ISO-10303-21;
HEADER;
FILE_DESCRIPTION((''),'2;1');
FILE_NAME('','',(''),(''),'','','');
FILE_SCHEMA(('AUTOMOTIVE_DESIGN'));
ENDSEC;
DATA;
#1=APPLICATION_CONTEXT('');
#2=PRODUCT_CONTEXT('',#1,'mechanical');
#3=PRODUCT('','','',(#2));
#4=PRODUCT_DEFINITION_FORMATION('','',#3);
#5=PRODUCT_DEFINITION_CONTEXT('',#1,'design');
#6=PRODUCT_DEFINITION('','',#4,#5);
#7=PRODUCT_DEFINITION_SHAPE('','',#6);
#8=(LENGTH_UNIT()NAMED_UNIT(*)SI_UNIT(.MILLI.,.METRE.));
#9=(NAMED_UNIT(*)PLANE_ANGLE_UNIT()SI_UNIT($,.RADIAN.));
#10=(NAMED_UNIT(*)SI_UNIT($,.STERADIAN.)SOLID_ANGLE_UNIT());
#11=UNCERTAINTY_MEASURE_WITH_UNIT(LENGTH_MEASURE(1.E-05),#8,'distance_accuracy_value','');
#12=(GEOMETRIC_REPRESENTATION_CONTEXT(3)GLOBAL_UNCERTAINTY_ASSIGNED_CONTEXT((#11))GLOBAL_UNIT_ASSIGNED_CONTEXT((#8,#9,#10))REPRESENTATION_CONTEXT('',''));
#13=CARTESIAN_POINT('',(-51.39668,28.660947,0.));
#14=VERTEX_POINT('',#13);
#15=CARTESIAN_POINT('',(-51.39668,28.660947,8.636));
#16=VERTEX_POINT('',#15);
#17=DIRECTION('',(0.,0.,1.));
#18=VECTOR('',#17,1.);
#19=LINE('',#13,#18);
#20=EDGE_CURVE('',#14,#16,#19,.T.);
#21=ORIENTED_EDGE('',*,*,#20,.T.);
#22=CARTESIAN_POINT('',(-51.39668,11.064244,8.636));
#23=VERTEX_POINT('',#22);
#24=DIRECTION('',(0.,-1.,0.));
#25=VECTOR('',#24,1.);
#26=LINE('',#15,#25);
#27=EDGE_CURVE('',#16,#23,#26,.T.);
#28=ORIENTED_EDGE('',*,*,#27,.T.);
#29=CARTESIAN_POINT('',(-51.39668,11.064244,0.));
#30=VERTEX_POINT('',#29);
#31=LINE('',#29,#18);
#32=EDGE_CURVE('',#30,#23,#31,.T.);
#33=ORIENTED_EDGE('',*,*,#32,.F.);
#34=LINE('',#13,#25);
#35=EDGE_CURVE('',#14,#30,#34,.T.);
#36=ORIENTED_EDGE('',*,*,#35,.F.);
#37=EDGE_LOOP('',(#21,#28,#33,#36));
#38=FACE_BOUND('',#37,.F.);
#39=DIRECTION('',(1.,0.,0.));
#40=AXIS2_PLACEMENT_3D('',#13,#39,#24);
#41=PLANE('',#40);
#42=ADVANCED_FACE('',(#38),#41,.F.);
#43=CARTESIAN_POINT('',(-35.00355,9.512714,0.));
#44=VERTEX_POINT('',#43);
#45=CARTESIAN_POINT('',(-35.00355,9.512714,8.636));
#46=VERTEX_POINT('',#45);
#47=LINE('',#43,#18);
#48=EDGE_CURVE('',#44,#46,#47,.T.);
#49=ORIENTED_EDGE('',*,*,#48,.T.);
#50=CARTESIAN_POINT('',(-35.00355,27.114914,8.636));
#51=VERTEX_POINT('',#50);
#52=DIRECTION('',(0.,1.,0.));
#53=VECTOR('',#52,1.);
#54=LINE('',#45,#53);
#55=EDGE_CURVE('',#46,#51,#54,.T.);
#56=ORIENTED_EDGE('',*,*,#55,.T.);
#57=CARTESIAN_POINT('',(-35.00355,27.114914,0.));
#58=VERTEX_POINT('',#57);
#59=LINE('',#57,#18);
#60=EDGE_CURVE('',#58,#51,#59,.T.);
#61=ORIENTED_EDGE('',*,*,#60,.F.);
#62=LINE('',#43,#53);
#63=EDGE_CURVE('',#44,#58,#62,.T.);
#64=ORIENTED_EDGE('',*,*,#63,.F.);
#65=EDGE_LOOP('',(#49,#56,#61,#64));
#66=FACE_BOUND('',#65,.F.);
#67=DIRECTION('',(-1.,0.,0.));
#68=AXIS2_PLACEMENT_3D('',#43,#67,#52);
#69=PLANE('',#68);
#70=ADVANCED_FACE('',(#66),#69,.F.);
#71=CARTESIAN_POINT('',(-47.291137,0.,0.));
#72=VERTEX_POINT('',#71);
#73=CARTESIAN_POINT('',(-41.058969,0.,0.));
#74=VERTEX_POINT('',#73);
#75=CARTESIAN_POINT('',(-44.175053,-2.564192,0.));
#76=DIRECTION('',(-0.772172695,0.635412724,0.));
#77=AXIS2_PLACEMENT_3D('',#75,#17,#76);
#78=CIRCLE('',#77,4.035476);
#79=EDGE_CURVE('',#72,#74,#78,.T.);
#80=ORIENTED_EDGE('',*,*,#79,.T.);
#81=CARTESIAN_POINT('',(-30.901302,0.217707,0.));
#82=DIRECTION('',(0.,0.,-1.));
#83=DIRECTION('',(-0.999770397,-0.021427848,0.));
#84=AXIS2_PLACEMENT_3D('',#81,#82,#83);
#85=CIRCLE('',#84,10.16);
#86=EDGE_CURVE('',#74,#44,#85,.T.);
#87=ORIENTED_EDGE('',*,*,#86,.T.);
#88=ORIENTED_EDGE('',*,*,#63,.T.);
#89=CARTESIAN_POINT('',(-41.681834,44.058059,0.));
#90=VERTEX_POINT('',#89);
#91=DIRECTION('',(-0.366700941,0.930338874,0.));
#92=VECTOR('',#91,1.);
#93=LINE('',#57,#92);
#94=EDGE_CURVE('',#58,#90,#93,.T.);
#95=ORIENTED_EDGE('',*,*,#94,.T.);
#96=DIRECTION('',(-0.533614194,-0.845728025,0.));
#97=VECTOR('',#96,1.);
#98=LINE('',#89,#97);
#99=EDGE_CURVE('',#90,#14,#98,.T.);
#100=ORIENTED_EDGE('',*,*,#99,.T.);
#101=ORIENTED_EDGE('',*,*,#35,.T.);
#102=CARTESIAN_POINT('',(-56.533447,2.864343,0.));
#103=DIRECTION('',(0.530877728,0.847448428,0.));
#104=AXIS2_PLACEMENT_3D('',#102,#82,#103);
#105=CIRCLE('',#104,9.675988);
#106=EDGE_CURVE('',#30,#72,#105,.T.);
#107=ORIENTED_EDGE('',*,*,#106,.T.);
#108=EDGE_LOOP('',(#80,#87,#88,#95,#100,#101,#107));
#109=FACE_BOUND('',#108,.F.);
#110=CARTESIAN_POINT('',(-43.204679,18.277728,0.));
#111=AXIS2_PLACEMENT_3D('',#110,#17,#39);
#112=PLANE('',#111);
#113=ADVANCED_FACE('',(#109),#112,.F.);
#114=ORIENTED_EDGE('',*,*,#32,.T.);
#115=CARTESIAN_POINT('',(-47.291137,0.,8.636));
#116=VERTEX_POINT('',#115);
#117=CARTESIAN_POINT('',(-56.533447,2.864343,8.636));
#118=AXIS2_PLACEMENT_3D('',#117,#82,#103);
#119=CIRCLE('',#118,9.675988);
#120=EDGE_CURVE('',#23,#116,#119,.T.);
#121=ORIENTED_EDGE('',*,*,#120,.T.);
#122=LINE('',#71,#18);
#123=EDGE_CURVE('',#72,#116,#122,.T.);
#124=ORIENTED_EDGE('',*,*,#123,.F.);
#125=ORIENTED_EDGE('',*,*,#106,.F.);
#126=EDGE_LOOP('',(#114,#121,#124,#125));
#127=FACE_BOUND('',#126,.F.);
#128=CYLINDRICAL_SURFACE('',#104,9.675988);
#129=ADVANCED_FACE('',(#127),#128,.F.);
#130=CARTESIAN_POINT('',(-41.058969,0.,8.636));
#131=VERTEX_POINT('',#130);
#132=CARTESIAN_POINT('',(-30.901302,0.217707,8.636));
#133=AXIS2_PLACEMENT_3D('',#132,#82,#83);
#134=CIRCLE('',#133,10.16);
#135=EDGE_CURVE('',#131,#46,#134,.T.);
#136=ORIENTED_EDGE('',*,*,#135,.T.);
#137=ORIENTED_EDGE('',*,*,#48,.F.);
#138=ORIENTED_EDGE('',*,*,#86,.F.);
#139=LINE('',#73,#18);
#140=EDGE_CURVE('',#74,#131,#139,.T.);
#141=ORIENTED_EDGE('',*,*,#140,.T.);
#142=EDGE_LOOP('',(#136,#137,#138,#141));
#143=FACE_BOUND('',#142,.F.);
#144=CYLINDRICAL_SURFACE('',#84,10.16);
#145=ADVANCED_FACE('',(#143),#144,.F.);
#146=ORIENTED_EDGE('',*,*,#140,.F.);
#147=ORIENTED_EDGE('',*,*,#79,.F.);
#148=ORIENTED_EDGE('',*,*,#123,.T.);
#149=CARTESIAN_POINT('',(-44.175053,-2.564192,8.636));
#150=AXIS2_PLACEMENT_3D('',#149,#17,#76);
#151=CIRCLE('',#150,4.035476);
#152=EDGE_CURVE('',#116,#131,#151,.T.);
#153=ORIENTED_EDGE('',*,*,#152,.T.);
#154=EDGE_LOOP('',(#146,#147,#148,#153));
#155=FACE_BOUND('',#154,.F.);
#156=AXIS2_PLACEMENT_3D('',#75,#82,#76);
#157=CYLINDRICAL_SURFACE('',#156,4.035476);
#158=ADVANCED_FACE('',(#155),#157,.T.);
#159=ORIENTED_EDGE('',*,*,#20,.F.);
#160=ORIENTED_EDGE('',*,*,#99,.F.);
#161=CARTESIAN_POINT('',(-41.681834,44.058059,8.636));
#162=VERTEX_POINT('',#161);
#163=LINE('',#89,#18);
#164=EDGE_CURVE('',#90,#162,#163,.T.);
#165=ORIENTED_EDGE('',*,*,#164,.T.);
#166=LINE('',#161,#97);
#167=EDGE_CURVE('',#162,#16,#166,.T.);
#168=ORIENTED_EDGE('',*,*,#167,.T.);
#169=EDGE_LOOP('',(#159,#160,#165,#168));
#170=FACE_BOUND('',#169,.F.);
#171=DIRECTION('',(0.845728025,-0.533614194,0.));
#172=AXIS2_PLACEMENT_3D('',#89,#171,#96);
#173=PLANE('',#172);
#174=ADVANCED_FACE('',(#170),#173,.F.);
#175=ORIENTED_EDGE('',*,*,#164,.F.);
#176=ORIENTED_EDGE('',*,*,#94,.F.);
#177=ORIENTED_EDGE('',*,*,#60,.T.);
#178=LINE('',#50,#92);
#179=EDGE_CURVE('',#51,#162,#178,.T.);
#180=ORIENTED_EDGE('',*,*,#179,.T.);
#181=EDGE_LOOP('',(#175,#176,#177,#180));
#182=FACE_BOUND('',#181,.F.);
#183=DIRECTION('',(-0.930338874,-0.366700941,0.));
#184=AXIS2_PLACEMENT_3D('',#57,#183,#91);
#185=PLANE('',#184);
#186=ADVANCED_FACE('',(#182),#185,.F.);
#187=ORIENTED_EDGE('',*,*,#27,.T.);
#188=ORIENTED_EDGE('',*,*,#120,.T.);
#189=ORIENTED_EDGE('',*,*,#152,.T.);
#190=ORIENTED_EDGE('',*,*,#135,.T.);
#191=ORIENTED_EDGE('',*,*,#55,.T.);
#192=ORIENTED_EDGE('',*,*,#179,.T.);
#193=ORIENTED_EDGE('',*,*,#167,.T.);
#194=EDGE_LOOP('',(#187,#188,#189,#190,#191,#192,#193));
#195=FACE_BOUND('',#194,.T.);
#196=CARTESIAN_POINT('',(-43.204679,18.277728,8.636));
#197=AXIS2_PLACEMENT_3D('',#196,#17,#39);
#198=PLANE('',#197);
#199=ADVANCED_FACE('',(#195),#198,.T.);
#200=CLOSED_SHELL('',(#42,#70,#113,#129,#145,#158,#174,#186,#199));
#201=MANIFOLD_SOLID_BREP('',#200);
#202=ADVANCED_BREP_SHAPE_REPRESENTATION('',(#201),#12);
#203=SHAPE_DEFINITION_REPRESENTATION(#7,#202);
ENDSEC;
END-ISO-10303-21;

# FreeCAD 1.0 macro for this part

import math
import FreeCAD as App
import Part
import Sketcher
Q = App.Units.Quantity

doc = App.newDocument("Part")
params = doc.addObject("Spreadsheet::Sheet", "Params")
for row, (alias, value) in enumerate([
    ("sketch1_radius", "0.4 in"),
    ("sketch1_height", "0.693 in"),
    ("sketch1_length", "0.717 in"),
    ("pad1_length", "0.34 in"),
], start=1):
    params.set(f"A{row}", alias)
    params.set(f"B{row}", "=" + value)
    params.setAlias(f"B{row}", alias)

body = doc.addObject("PartDesign::Body", "Body")

sketch1 = body.newObject("Sketcher::SketchObject", "Sketch")
sketch1.AttachmentSupport = (doc.getObject("XY_Plane"), [""])
sketch1.MapMode = "FlatFace"
sketch1.addGeometry([
    Part.LineSegment(App.Vector(-41.7, 44.1, 0), App.Vector(-51.4, 28.7, 0)),
    Part.LineSegment(App.Vector(-51.4, 28.7, 0), App.Vector(-51.4, 11.1, 0)),
    Part.ArcOfCircle(Part.Circle(App.Vector(-56.5, 2.9, 0), App.Vector(0, 0, 1), 9.7), math.radians(-17), math.radians(58)),
    Part.ArcOfCircle(Part.Circle(App.Vector(-44.2, -2.6, 0), App.Vector(0, 0, 1), 4), math.radians(141), math.radians(399)),
    Part.ArcOfCircle(Part.Circle(App.Vector(-30.9, 0.2, 0), App.Vector(0, 0, 1), 10.2), math.radians(114), math.radians(181)),
    Part.LineSegment(App.Vector(-35, 9.5, 0), App.Vector(-35, 27.1, 0)),
    Part.LineSegment(App.Vector(-35, 27.1, 0), App.Vector(-41.7, 44.1, 0)),
], False)
sketch1.addConstraint([
    Sketcher.Constraint("Coincident", 0, 2, 1, 1),
    Sketcher.Constraint("Coincident", 1, 2, 2, 2),
    Sketcher.Constraint("Coincident", 2, 1, 3, 1),
    Sketcher.Constraint("Coincident", 3, 2, 4, 2),
    Sketcher.Constraint("Coincident", 4, 1, 5, 1),
    Sketcher.Constraint("Coincident", 5, 2, 6, 1),
    Sketcher.Constraint("Coincident", 6, 2, 0, 1),
    Sketcher.Constraint("Vertical", 1),
    Sketcher.Constraint("Vertical", 5),
    Sketcher.Constraint("PointOnObject", 2, 1, -1),
    Sketcher.Constraint("PointOnObject", 3, 2, -1),
    Sketcher.Constraint("Radius", 4, Q("0.4 in")),
    Sketcher.Constraint("DistanceY", 5, 1, 5, 2, Q("0.693 in")),
    Sketcher.Constraint("Distance", 6, Q("0.717 in")),
    Sketcher.Constraint("Radius", 2, 9.675988),
    Sketcher.Constraint("DistanceY", -1, 1, 1, 2, Q("0.4356002 in")),
    Sketcher.Constraint("Radius", 3, 4.035476),
    Sketcher.Constraint("DistanceY", 2, 3, 6, 2, Q("1.6217998 in")),
    Sketcher.Constraint("DistanceY", 3, 3, 4, 3, 2.781899),
    Sketcher.Constraint("DistanceY", 2, 3, 1, 2, 8.199901),
    Sketcher.Constraint("Distance", 0, 18.205749),
    Sketcher.Constraint("DistanceY", 1, 2, 1, 1, 17.596703),
    Sketcher.Constraint("DistanceX", 0, 2, -1, 1, 51.39668),
    Sketcher.Constraint("DistanceX", 3, 2, -1, 1, 41.058969),
])
sketch1.setExpression("Constraints[11]", "Params.sketch1_radius")
sketch1.setExpression("Constraints[12]", "Params.sketch1_height")
sketch1.setExpression("Constraints[13]", "Params.sketch1_length")
pad1 = body.newObject("PartDesign::Pad", "Pad")
pad1.Profile = sketch1
pad1.setExpression("Length", "Params.pad1_length")

doc.recompute()
